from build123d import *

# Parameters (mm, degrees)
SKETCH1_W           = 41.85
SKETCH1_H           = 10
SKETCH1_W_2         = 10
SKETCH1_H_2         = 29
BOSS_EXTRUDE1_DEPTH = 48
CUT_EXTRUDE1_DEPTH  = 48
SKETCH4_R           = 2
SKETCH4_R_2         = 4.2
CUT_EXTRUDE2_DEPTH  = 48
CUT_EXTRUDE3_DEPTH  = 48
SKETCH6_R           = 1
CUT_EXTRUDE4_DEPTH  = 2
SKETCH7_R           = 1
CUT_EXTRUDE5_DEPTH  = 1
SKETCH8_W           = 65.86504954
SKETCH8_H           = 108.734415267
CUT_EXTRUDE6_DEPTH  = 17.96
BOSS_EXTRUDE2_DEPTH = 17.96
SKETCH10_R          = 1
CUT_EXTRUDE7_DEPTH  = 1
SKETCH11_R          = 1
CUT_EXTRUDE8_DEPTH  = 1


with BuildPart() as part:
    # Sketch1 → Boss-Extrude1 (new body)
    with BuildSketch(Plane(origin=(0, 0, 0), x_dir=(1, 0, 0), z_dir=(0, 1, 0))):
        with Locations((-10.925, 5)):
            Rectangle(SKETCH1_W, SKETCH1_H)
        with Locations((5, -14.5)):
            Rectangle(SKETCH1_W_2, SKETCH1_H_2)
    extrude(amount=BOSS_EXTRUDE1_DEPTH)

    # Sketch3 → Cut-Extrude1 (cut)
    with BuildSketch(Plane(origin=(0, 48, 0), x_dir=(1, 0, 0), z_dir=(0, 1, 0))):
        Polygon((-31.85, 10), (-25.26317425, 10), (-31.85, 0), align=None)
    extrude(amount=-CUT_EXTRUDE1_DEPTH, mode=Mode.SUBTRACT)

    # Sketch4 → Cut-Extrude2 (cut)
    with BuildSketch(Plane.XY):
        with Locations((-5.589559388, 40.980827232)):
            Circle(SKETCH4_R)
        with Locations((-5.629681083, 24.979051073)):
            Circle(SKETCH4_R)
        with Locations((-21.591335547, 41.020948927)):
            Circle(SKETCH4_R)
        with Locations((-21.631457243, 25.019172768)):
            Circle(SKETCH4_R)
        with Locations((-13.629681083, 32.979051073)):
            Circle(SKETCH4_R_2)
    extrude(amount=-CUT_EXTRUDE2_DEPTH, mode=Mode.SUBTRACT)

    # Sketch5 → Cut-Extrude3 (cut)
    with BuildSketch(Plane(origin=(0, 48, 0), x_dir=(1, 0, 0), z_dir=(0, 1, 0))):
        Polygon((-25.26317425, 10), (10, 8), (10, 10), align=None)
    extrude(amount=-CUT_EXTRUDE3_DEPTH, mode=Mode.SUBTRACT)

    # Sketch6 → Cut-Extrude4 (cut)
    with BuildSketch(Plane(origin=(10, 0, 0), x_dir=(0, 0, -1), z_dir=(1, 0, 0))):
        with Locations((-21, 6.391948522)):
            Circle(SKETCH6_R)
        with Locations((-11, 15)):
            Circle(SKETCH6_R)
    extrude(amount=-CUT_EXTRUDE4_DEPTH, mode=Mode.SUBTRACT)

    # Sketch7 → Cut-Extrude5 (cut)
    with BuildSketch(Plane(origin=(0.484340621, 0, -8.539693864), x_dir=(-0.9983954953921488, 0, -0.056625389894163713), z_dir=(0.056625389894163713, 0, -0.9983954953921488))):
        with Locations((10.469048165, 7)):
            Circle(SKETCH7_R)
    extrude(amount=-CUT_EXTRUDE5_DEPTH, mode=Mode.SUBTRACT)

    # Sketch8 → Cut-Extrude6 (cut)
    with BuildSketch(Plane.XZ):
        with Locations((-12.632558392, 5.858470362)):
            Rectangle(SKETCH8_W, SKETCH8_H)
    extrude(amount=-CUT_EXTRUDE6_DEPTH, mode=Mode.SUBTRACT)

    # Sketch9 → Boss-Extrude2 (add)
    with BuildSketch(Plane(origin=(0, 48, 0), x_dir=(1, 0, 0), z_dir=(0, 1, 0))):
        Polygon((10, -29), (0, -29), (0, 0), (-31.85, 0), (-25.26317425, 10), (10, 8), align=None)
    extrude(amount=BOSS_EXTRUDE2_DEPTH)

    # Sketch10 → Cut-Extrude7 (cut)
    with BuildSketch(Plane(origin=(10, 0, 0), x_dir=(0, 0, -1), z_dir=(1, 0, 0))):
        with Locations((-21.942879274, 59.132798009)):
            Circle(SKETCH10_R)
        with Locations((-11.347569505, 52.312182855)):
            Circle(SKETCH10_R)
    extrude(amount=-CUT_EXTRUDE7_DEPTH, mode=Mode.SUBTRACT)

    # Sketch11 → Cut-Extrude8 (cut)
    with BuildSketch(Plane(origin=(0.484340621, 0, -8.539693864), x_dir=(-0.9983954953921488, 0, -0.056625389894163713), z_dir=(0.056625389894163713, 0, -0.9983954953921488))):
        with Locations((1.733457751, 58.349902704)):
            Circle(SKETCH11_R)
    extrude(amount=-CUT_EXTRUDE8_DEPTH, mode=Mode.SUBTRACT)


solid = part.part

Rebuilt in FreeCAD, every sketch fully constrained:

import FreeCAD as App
import Part
import Sketcher

V = App.Vector

doc = App.newDocument("Part")
params = doc.addObject("Spreadsheet::Sheet", "Params")
for row, (alias, value) in enumerate([
    ("sketch1_width", "10 mm"),
    ("sketch1_height", "29 mm"),
    ("sketch1_width2", "31.85 mm"),
    ("pad1_length", "48 mm"),
    ("sketch2_height", "10 mm"),
    ("pocket1_length", "48 mm"),
    ("sketch3_diameter", "4 mm"),
    ("sketch3_diameter2", "8.4 mm"),
    ("pocket2_length", "48 mm"),
    ("sketch4_height", "2 mm"),
    ("pocket3_length", "48 mm"),
    ("sketch5_diameter", "2 mm"),
    ("pocket4_length", "2 mm"),
    ("sketch6_diameter", "2 mm"),
    ("pocket5_length", "1 mm"),
    ("pocket6_length", "17.96 mm"),
    ("sketch8_width", "10 mm"),
    ("sketch8_height", "37 mm"),
    ("sketch8_height2", "29 mm"),
    ("sketch8_width2", "31.85 mm"),
    ("pad2_length", "17.96 mm"),
    ("sketch9_diameter", "2 mm"),
    ("pocket7_length", "1 mm"),
    ("sketch10_diameter", "2 mm"),
    ("pocket8_length", "1 mm"),
], start=1):
    params.set(f"A{row}", alias)
    params.set(f"B{row}", "=" + value)
    params.setAlias(f"B{row}", alias)

body = doc.addObject("PartDesign::Body", "Body")

# Sketch on XZ plane
sketch1 = doc.addObject("Sketcher::SketchObject", "Sketch")
body.addObject(sketch1)
sketch1.AttachmentSupport = (doc.XZ_Plane, [""])
sketch1.MapMode = "FlatFace"
sketch1.addGeometry(Part.LineSegment(V(-32, -10, 0), V(-32, 0, 0)), False)
sketch1.addGeometry(Part.LineSegment(V(-32, 0, 0), V(0, 0, 0)), False)
sketch1.addGeometry(Part.LineSegment(V(0, 0, 0), V(0, 29, 0)), False)
sketch1.addGeometry(Part.LineSegment(V(0, 29, 0), V(10, 29, 0)), False)
sketch1.addGeometry(Part.LineSegment(V(10, 29, 0), V(10, -10, 0)), False)
sketch1.addGeometry(Part.LineSegment(V(10, -10, 0), V(-32, -10, 0)), False)
sketch1.addConstraint(Sketcher.Constraint("Coincident", 0, 2, 1, 1))
sketch1.addConstraint(Sketcher.Constraint("Coincident", 1, 2, 2, 1))
sketch1.addConstraint(Sketcher.Constraint("Coincident", 2, 2, 3, 1))
sketch1.addConstraint(Sketcher.Constraint("Coincident", 3, 2, 4, 1))
sketch1.addConstraint(Sketcher.Constraint("Coincident", 4, 2, 5, 1))
sketch1.addConstraint(Sketcher.Constraint("Coincident", 5, 2, 0, 1))
sketch1.addConstraint(Sketcher.Constraint("Vertical", 0))
sketch1.addConstraint(Sketcher.Constraint("Horizontal", 1))
sketch1.addConstraint(Sketcher.Constraint("Vertical", 2))
sketch1.addConstraint(Sketcher.Constraint("Horizontal", 3))
sketch1.addConstraint(Sketcher.Constraint("Vertical", 4))
sketch1.addConstraint(Sketcher.Constraint("Horizontal", 5))
sketch1.addConstraint(Sketcher.Constraint("Coincident", 1, 2, -1, 1))
sketch1.addConstraint(Sketcher.Constraint("Equal", 3, 0))
sketch1.addConstraint(Sketcher.Constraint("DistanceX", 3, 1, 3, 2, 10.0))
sketch1.addConstraint(Sketcher.Constraint("DistanceY", 2, 1, 2, 2, 29.0))
sketch1.addConstraint(Sketcher.Constraint("DistanceX", 1, 1, 1, 2, 31.85))
sketch1.setExpression("Constraints[14]", "Params.sketch1_width")
sketch1.setExpression("Constraints[15]", "Params.sketch1_height")
sketch1.setExpression("Constraints[16]", "Params.sketch1_width2")
pad1 = doc.addObject("PartDesign::Pad", "Pad")
body.addObject(pad1)
pad1.Profile = sketch1
pad1.setExpression("Length", "Params.pad1_length")
pad1.Reversed = True

# Sketch on XZ plane
sketch2 = doc.addObject("Sketcher::SketchObject", "Sketch001")
body.addObject(sketch2)
sketch2.AttachmentSupport = (doc.XZ_Plane, [""])
sketch2.MapMode = "FlatFace"
sketch2.AttachmentOffset = App.Placement(V(0, 0, -48), App.Rotation())
sketch2.addGeometry(Part.LineSegment(V(-25, -10, 0), V(-32, -10, 0)), False)
sketch2.addGeometry(Part.LineSegment(V(-32, -10, 0), V(-32, 0, 0)), False)
sketch2.addGeometry(Part.LineSegment(V(-32, 0, 0), V(-25, -10, 0)), False)
sketch2.addConstraint(Sketcher.Constraint("Coincident", 0, 2, 1, 1))
sketch2.addConstraint(Sketcher.Constraint("Coincident", 1, 2, 2, 1))
sketch2.addConstraint(Sketcher.Constraint("Coincident", 2, 2, 0, 1))
sketch2.addConstraint(Sketcher.Constraint("Horizontal", 0))
sketch2.addConstraint(Sketcher.Constraint("Vertical", 1))
sketch2.addConstraint(Sketcher.Constraint("PointOnObject", 1, 2, -1))
sketch2.addConstraint(Sketcher.Constraint("DistanceY", 1, 1, 1, 2, 10.0))
sketch2.addConstraint(Sketcher.Constraint("DistanceX", 0, 2, -1, 1, 31.85))
sketch2.addConstraint(Sketcher.Constraint("Distance", 2, 11.974401))
sketch2.setExpression("Constraints[6]", "Params.sketch2_height")
pocket1 = doc.addObject("PartDesign::Pocket", "Pocket")
body.addObject(pocket1)
pocket1.Profile = sketch2
pocket1.setExpression("Length", "Params.pocket1_length")
pocket1.Reversed = True

# Sketch on XY plane
sketch3 = doc.addObject("Sketcher::SketchObject", "Sketch002")
body.addObject(sketch3)
sketch3.AttachmentSupport = (doc.XY_Plane, [""])
sketch3.MapMode = "FlatFace"
sketch3.addGeometry(Part.Circle(V(-5.6, 41, 0), V(0, 0, 1), 2), False)
sketch3.addGeometry(Part.Circle(V(-5.6, 25, 0), V(0, 0, 1), 2), False)
sketch3.addGeometry(Part.Circle(V(-21.6, 41, 0), V(0, 0, 1), 2), False)
sketch3.addGeometry(Part.Circle(V(-21.6, 25, 0), V(0, 0, 1), 2), False)
sketch3.addGeometry(Part.Circle(V(-13.6, 33, 0), V(0, 0, 1), 4.2), False)
sketch3.addConstraint(Sketcher.Constraint("Equal", 0, 1))
sketch3.addConstraint(Sketcher.Constraint("Equal", 1, 2))
sketch3.addConstraint(Sketcher.Constraint("Equal", 2, 3))
sketch3.addConstraint(Sketcher.Constraint("Diameter", 0, 4.0))
sketch3.addConstraint(Sketcher.Constraint("Diameter", 4, 8.4))
sketch3.addConstraint(Sketcher.Constraint("DistanceX", 4, 3, 1, 3, 8.0))
sketch3.addConstraint(Sketcher.Constraint("DistanceY", 1, 3, 4, 3, 8.0))
sketch3.addConstraint(Sketcher.Constraint("DistanceX", 0, 3, -1, 1, 5.589559))
sketch3.addConstraint(Sketcher.Constraint("DistanceX", 1, 3, -1, 1, 5.629681))
sketch3.addConstraint(Sketcher.Constraint("DistanceY", -1, 1, 1, 3, 24.979051))
sketch3.addConstraint(Sketcher.Constraint("DistanceY", -1, 1, 2, 3, 41.020949))
sketch3.addConstraint(Sketcher.Constraint("DistanceY", 0, 3, 2, 3, 0.040122))
sketch3.addConstraint(Sketcher.Constraint("DistanceX", 3, 3, 2, 3, 0.040122))
sketch3.addConstraint(Sketcher.Constraint("DistanceY", 1, 3, 3, 3, 0.040122))
sketch3.addConstraint(Sketcher.Constraint("DistanceX", 2, 3, -1, 1, 21.591336))
sketch3.setExpression("Constraints[3]", "Params.sketch3_diameter")
sketch3.setExpression("Constraints[4]", "Params.sketch3_diameter2")
pocket2 = doc.addObject("PartDesign::Pocket", "Pocket001")
body.addObject(pocket2)
pocket2.Profile = sketch3
pocket2.setExpression("Length", "Params.pocket2_length")

# Sketch on XZ plane
sketch4 = doc.addObject("Sketcher::SketchObject", "Sketch003")
body.addObject(sketch4)
sketch4.AttachmentSupport = (doc.XZ_Plane, [""])
sketch4.MapMode = "FlatFace"
sketch4.AttachmentOffset = App.Placement(V(0, 0, -48), App.Rotation())
sketch4.addGeometry(Part.LineSegment(V(-25.3, -10, 0), V(10, -8, 0)), False)
sketch4.addGeometry(Part.LineSegment(V(10, -8, 0), V(10, -10, 0)), False)
sketch4.addGeometry(Part.LineSegment(V(10, -10, 0), V(-25.3, -10, 0)), False)
sketch4.addConstraint(Sketcher.Constraint("Coincident", 0, 2, 1, 1))
sketch4.addConstraint(Sketcher.Constraint("Coincident", 1, 2, 2, 1))
sketch4.addConstraint(Sketcher.Constraint("Coincident", 2, 2, 0, 1))
sketch4.addConstraint(Sketcher.Constraint("Vertical", 1))
sketch4.addConstraint(Sketcher.Constraint("Horizontal", 2))
sketch4.addConstraint(Sketcher.Constraint("DistanceY", 1, 2, 1, 1, 2.0))
sketch4.addConstraint(Sketcher.Constraint("DistanceX", -1, 1, 0, 2, 10.0))
sketch4.addConstraint(Sketcher.Constraint("DistanceY", 0, 2, -1, 1, 8.0))
sketch4.addConstraint(Sketcher.Constraint("DistanceX", 2, 2, 2, 1, 35.263174))
sketch4.setExpression("Constraints[5]", "Params.sketch4_height")
pocket3 = doc.addObject("PartDesign::Pocket", "Pocket002")
body.addObject(pocket3)
pocket3.Profile = sketch4
pocket3.setExpression("Length", "Params.pocket3_length")
pocket3.Reversed = True

# Sketch on YZ plane
sketch5 = doc.addObject("Sketcher::SketchObject", "Sketch004")
body.addObject(sketch5)
sketch5.AttachmentSupport = (doc.YZ_Plane, [""])
sketch5.MapMode = "FlatFace"
sketch5.AttachmentOffset = App.Placement(V(0, 0, 10), App.Rotation())
sketch5.addGeometry(Part.Circle(V(6.4, 21, 0), V(0, 0, 1), 1), False)
sketch5.addGeometry(Part.Circle(V(15, 11, 0), V(0, 0, 1), 1), False)
sketch5.addConstraint(Sketcher.Constraint("Equal", 0, 1))
sketch5.addConstraint(Sketcher.Constraint("Diameter", 0, 2.0))
sketch5.addConstraint(Sketcher.Constraint("DistanceY", -1, 1, 0, 3, 21.0))
sketch5.addConstraint(Sketcher.Constraint("DistanceX", -1, 1, 1, 3, 15.0))
sketch5.addConstraint(Sketcher.Constraint("DistanceY", -1, 1, 1, 3, 11.0))
sketch5.addConstraint(Sketcher.Constraint("DistanceX", -1, 1, 0, 3, 6.391949))
sketch5.setExpression("Constraints[1]", "Params.sketch5_diameter")
pocket4 = doc.addObject("PartDesign::Pocket", "Pocket003")
body.addObject(pocket4)
pocket4.Profile = sketch5
pocket4.setExpression("Length", "Params.pocket4_length")

# Sketch on an angled plane
sketch6 = doc.addObject("Sketcher::SketchObject", "Sketch005")
body.addObject(sketch6)
sketch6.Placement = App.Placement(V(0.484341, 0, -8.539694), App.Rotation(V(-0.998395495, 0, -0.05662539), V(0, 0.999999999, 0), V(0.05662539, 0, -0.998395495), "ZXY"))
sketch6.addGeometry(Part.Circle(V(10.5, 7, 0), V(0, 0, 1), 1), False)
sketch6.addConstraint(Sketcher.Constraint("Diameter", 0, 2.0))
sketch6.addConstraint(Sketcher.Constraint("DistanceY", -1, 1, 0, 3, 7.0))
sketch6.addConstraint(Sketcher.Constraint("DistanceX", -1, 1, 0, 3, 10.469048))
sketch6.setExpression("Constraints[0]", "Params.sketch6_diameter")
pocket5 = doc.addObject("PartDesign::Pocket", "Pocket004")
body.addObject(pocket5)
pocket5.Profile = sketch6
pocket5.setExpression("Length", "Params.pocket5_length")

# Sketch on XZ plane
sketch7 = doc.addObject("Sketcher::SketchObject", "Sketch006")
body.addObject(sketch7)
sketch7.AttachmentSupport = (doc.XZ_Plane, [""])
sketch7.MapMode = "FlatFace"
sketch7.addGeometry(Part.LineSegment(V(-46, 60, 0), V(-46, -49, 0)), False)
sketch7.addGeometry(Part.LineSegment(V(-46, -49, 0), V(20, -49, 0)), False)
sketch7.addGeometry(Part.LineSegment(V(20, -49, 0), V(20, 60, 0)), False)
sketch7.addGeometry(Part.LineSegment(V(20, 60, 0), V(-46, 60, 0)), False)
sketch7.addConstraint(Sketcher.Constraint("Coincident", 0, 2, 1, 1))
sketch7.addConstraint(Sketcher.Constraint("Coincident", 1, 2, 2, 1))
sketch7.addConstraint(Sketcher.Constraint("Coincident", 2, 2, 3, 1))
sketch7.addConstraint(Sketcher.Constraint("Coincident", 3, 2, 0, 1))
sketch7.addConstraint(Sketcher.Constraint("Vertical", 0))
sketch7.addConstraint(Sketcher.Constraint("Horizontal", 1))
sketch7.addConstraint(Sketcher.Constraint("Vertical", 2))
sketch7.addConstraint(Sketcher.Constraint("Horizontal", 3))
sketch7.addConstraint(Sketcher.Constraint("DistanceX", 1, 1, 1, 2, 65.86505))
sketch7.addConstraint(Sketcher.Constraint("DistanceY", 0, 2, 0, 1, 108.734415))
sketch7.addConstraint(Sketcher.Constraint("DistanceX", 0, 2, -1, 1, 45.565083))
sketch7.addConstraint(Sketcher.Constraint("DistanceY", 0, 2, -1, 1, 48.508737))
pocket6 = doc.addObject("PartDesign::Pocket", "Pocket005")
body.addObject(pocket6)
pocket6.Profile = sketch7
pocket6.setExpression("Length", "Params.pocket6_length")

# Sketch on XZ plane
sketch8 = doc.addObject("Sketcher::SketchObject", "Sketch007")
body.addObject(sketch8)
sketch8.AttachmentSupport = (doc.XZ_Plane, [""])
sketch8.MapMode = "FlatFace"
sketch8.AttachmentOffset = App.Placement(V(0, 0, -48), App.Rotation())
sketch8.addGeometry(Part.LineSegment(V(0, 29, 0), V(10, 29, 0)), False)
sketch8.addGeometry(Part.LineSegment(V(10, 29, 0), V(10, -8, 0)), False)
sketch8.addGeometry(Part.LineSegment(V(10, -8, 0), V(-25, -10, 0)), False)
sketch8.addGeometry(Part.LineSegment(V(-25, -10, 0), V(-32, 0, 0)), False)
sketch8.addGeometry(Part.LineSegment(V(-32, 0, 0), V(0, 0, 0)), False)
sketch8.addGeometry(Part.LineSegment(V(0, 0, 0), V(0, 29, 0)), False)
sketch8.addConstraint(Sketcher.Constraint("Coincident", 0, 2, 1, 1))
sketch8.addConstraint(Sketcher.Constraint("Coincident", 1, 2, 2, 1))
sketch8.addConstraint(Sketcher.Constraint("Coincident", 2, 2, 3, 1))
sketch8.addConstraint(Sketcher.Constraint("Coincident", 3, 2, 4, 1))
sketch8.addConstraint(Sketcher.Constraint("Coincident", 4, 2, 5, 1))
sketch8.addConstraint(Sketcher.Constraint("Coincident", 5, 2, 0, 1))
sketch8.addConstraint(Sketcher.Constraint("Horizontal", 0))
sketch8.addConstraint(Sketcher.Constraint("Vertical", 1))
sketch8.addConstraint(Sketcher.Constraint("Horizontal", 4))
sketch8.addConstraint(Sketcher.Constraint("Vertical", 5))
sketch8.addConstraint(Sketcher.Constraint("Coincident", 4, 2, -1, 1))
sketch8.addConstraint(Sketcher.Constraint("DistanceX", 0, 1, 0, 2, 10.0))
sketch8.addConstraint(Sketcher.Constraint("DistanceY", 1, 2, 1, 1, 37.0))
sketch8.addConstraint(Sketcher.Constraint("DistanceY", 5, 1, 5, 2, 29.0))
sketch8.addConstraint(Sketcher.Constraint("DistanceY", 2, 2, -1, 1, 10.0))
sketch8.addConstraint(Sketcher.Constraint("DistanceX", 4, 1, 4, 2, 31.85))
sketch8.addConstraint(Sketcher.Constraint("Distance", 3, 11.974401))
sketch8.setExpression("Constraints[11]", "Params.sketch8_width")
sketch8.setExpression("Constraints[12]", "Params.sketch8_height")
sketch8.setExpression("Constraints[13]", "Params.sketch8_height2")
sketch8.setExpression("Constraints[15]", "Params.sketch8_width2")
pad2 = doc.addObject("PartDesign::Pad", "Pad001")
body.addObject(pad2)
pad2.Profile = sketch8
pad2.setExpression("Length", "Params.pad2_length")
pad2.Reversed = True

# Sketch on YZ plane
sketch9 = doc.addObject("Sketcher::SketchObject", "Sketch008")
body.addObject(sketch9)
sketch9.AttachmentSupport = (doc.YZ_Plane, [""])
sketch9.MapMode = "FlatFace"
sketch9.AttachmentOffset = App.Placement(V(0, 0, 10), App.Rotation())
sketch9.addGeometry(Part.Circle(V(59.1, 21.9, 0), V(0, 0, 1), 1), False)
sketch9.addGeometry(Part.Circle(V(52.3, 11.3, 0), V(0, 0, 1), 1), False)
sketch9.addConstraint(Sketcher.Constraint("Equal", 0, 1))
sketch9.addConstraint(Sketcher.Constraint("Diameter", 0, 2.0))
sketch9.addConstraint(Sketcher.Constraint("DistanceX", -1, 1, 0, 3, 59.132798))
sketch9.addConstraint(Sketcher.Constraint("DistanceY", -1, 1, 0, 3, 21.942879))
sketch9.addConstraint(Sketcher.Constraint("DistanceY", -1, 1, 1, 3, 11.34757))
sketch9.addConstraint(Sketcher.Constraint("DistanceX", -1, 1, 1, 3, 52.312183))
sketch9.setExpression("Constraints[1]", "Params.sketch9_diameter")
pocket7 = doc.addObject("PartDesign::Pocket", "Pocket006")
body.addObject(pocket7)
pocket7.Profile = sketch9
pocket7.setExpression("Length", "Params.pocket7_length")

# Sketch on an angled plane
sketch10 = doc.addObject("Sketcher::SketchObject", "Sketch009")
body.addObject(sketch10)
sketch10.Placement = App.Placement(V(0.484341, 0, -8.539694), App.Rotation(V(-0.998395495, 0, -0.05662539), V(0, 0.999999999, 0), V(0.05662539, 0, -0.998395495), "ZXY"))
sketch10.addGeometry(Part.Circle(V(1.7, 58.3, 0), V(0, 0, 1), 1), False)
sketch10.addConstraint(Sketcher.Constraint("Diameter", 0, 2.0))
sketch10.addConstraint(Sketcher.Constraint("DistanceX", -1, 1, 0, 3, 1.733458))
sketch10.addConstraint(Sketcher.Constraint("DistanceY", -1, 1, 0, 3, 58.349903))
sketch10.setExpression("Constraints[0]", "Params.sketch10_diameter")
pocket8 = doc.addObject("PartDesign::Pocket", "Pocket007")
body.addObject(pocket8)
pocket8.Profile = sketch10
pocket8.setExpression("Length", "Params.pocket8_length")

doc.recompute()
